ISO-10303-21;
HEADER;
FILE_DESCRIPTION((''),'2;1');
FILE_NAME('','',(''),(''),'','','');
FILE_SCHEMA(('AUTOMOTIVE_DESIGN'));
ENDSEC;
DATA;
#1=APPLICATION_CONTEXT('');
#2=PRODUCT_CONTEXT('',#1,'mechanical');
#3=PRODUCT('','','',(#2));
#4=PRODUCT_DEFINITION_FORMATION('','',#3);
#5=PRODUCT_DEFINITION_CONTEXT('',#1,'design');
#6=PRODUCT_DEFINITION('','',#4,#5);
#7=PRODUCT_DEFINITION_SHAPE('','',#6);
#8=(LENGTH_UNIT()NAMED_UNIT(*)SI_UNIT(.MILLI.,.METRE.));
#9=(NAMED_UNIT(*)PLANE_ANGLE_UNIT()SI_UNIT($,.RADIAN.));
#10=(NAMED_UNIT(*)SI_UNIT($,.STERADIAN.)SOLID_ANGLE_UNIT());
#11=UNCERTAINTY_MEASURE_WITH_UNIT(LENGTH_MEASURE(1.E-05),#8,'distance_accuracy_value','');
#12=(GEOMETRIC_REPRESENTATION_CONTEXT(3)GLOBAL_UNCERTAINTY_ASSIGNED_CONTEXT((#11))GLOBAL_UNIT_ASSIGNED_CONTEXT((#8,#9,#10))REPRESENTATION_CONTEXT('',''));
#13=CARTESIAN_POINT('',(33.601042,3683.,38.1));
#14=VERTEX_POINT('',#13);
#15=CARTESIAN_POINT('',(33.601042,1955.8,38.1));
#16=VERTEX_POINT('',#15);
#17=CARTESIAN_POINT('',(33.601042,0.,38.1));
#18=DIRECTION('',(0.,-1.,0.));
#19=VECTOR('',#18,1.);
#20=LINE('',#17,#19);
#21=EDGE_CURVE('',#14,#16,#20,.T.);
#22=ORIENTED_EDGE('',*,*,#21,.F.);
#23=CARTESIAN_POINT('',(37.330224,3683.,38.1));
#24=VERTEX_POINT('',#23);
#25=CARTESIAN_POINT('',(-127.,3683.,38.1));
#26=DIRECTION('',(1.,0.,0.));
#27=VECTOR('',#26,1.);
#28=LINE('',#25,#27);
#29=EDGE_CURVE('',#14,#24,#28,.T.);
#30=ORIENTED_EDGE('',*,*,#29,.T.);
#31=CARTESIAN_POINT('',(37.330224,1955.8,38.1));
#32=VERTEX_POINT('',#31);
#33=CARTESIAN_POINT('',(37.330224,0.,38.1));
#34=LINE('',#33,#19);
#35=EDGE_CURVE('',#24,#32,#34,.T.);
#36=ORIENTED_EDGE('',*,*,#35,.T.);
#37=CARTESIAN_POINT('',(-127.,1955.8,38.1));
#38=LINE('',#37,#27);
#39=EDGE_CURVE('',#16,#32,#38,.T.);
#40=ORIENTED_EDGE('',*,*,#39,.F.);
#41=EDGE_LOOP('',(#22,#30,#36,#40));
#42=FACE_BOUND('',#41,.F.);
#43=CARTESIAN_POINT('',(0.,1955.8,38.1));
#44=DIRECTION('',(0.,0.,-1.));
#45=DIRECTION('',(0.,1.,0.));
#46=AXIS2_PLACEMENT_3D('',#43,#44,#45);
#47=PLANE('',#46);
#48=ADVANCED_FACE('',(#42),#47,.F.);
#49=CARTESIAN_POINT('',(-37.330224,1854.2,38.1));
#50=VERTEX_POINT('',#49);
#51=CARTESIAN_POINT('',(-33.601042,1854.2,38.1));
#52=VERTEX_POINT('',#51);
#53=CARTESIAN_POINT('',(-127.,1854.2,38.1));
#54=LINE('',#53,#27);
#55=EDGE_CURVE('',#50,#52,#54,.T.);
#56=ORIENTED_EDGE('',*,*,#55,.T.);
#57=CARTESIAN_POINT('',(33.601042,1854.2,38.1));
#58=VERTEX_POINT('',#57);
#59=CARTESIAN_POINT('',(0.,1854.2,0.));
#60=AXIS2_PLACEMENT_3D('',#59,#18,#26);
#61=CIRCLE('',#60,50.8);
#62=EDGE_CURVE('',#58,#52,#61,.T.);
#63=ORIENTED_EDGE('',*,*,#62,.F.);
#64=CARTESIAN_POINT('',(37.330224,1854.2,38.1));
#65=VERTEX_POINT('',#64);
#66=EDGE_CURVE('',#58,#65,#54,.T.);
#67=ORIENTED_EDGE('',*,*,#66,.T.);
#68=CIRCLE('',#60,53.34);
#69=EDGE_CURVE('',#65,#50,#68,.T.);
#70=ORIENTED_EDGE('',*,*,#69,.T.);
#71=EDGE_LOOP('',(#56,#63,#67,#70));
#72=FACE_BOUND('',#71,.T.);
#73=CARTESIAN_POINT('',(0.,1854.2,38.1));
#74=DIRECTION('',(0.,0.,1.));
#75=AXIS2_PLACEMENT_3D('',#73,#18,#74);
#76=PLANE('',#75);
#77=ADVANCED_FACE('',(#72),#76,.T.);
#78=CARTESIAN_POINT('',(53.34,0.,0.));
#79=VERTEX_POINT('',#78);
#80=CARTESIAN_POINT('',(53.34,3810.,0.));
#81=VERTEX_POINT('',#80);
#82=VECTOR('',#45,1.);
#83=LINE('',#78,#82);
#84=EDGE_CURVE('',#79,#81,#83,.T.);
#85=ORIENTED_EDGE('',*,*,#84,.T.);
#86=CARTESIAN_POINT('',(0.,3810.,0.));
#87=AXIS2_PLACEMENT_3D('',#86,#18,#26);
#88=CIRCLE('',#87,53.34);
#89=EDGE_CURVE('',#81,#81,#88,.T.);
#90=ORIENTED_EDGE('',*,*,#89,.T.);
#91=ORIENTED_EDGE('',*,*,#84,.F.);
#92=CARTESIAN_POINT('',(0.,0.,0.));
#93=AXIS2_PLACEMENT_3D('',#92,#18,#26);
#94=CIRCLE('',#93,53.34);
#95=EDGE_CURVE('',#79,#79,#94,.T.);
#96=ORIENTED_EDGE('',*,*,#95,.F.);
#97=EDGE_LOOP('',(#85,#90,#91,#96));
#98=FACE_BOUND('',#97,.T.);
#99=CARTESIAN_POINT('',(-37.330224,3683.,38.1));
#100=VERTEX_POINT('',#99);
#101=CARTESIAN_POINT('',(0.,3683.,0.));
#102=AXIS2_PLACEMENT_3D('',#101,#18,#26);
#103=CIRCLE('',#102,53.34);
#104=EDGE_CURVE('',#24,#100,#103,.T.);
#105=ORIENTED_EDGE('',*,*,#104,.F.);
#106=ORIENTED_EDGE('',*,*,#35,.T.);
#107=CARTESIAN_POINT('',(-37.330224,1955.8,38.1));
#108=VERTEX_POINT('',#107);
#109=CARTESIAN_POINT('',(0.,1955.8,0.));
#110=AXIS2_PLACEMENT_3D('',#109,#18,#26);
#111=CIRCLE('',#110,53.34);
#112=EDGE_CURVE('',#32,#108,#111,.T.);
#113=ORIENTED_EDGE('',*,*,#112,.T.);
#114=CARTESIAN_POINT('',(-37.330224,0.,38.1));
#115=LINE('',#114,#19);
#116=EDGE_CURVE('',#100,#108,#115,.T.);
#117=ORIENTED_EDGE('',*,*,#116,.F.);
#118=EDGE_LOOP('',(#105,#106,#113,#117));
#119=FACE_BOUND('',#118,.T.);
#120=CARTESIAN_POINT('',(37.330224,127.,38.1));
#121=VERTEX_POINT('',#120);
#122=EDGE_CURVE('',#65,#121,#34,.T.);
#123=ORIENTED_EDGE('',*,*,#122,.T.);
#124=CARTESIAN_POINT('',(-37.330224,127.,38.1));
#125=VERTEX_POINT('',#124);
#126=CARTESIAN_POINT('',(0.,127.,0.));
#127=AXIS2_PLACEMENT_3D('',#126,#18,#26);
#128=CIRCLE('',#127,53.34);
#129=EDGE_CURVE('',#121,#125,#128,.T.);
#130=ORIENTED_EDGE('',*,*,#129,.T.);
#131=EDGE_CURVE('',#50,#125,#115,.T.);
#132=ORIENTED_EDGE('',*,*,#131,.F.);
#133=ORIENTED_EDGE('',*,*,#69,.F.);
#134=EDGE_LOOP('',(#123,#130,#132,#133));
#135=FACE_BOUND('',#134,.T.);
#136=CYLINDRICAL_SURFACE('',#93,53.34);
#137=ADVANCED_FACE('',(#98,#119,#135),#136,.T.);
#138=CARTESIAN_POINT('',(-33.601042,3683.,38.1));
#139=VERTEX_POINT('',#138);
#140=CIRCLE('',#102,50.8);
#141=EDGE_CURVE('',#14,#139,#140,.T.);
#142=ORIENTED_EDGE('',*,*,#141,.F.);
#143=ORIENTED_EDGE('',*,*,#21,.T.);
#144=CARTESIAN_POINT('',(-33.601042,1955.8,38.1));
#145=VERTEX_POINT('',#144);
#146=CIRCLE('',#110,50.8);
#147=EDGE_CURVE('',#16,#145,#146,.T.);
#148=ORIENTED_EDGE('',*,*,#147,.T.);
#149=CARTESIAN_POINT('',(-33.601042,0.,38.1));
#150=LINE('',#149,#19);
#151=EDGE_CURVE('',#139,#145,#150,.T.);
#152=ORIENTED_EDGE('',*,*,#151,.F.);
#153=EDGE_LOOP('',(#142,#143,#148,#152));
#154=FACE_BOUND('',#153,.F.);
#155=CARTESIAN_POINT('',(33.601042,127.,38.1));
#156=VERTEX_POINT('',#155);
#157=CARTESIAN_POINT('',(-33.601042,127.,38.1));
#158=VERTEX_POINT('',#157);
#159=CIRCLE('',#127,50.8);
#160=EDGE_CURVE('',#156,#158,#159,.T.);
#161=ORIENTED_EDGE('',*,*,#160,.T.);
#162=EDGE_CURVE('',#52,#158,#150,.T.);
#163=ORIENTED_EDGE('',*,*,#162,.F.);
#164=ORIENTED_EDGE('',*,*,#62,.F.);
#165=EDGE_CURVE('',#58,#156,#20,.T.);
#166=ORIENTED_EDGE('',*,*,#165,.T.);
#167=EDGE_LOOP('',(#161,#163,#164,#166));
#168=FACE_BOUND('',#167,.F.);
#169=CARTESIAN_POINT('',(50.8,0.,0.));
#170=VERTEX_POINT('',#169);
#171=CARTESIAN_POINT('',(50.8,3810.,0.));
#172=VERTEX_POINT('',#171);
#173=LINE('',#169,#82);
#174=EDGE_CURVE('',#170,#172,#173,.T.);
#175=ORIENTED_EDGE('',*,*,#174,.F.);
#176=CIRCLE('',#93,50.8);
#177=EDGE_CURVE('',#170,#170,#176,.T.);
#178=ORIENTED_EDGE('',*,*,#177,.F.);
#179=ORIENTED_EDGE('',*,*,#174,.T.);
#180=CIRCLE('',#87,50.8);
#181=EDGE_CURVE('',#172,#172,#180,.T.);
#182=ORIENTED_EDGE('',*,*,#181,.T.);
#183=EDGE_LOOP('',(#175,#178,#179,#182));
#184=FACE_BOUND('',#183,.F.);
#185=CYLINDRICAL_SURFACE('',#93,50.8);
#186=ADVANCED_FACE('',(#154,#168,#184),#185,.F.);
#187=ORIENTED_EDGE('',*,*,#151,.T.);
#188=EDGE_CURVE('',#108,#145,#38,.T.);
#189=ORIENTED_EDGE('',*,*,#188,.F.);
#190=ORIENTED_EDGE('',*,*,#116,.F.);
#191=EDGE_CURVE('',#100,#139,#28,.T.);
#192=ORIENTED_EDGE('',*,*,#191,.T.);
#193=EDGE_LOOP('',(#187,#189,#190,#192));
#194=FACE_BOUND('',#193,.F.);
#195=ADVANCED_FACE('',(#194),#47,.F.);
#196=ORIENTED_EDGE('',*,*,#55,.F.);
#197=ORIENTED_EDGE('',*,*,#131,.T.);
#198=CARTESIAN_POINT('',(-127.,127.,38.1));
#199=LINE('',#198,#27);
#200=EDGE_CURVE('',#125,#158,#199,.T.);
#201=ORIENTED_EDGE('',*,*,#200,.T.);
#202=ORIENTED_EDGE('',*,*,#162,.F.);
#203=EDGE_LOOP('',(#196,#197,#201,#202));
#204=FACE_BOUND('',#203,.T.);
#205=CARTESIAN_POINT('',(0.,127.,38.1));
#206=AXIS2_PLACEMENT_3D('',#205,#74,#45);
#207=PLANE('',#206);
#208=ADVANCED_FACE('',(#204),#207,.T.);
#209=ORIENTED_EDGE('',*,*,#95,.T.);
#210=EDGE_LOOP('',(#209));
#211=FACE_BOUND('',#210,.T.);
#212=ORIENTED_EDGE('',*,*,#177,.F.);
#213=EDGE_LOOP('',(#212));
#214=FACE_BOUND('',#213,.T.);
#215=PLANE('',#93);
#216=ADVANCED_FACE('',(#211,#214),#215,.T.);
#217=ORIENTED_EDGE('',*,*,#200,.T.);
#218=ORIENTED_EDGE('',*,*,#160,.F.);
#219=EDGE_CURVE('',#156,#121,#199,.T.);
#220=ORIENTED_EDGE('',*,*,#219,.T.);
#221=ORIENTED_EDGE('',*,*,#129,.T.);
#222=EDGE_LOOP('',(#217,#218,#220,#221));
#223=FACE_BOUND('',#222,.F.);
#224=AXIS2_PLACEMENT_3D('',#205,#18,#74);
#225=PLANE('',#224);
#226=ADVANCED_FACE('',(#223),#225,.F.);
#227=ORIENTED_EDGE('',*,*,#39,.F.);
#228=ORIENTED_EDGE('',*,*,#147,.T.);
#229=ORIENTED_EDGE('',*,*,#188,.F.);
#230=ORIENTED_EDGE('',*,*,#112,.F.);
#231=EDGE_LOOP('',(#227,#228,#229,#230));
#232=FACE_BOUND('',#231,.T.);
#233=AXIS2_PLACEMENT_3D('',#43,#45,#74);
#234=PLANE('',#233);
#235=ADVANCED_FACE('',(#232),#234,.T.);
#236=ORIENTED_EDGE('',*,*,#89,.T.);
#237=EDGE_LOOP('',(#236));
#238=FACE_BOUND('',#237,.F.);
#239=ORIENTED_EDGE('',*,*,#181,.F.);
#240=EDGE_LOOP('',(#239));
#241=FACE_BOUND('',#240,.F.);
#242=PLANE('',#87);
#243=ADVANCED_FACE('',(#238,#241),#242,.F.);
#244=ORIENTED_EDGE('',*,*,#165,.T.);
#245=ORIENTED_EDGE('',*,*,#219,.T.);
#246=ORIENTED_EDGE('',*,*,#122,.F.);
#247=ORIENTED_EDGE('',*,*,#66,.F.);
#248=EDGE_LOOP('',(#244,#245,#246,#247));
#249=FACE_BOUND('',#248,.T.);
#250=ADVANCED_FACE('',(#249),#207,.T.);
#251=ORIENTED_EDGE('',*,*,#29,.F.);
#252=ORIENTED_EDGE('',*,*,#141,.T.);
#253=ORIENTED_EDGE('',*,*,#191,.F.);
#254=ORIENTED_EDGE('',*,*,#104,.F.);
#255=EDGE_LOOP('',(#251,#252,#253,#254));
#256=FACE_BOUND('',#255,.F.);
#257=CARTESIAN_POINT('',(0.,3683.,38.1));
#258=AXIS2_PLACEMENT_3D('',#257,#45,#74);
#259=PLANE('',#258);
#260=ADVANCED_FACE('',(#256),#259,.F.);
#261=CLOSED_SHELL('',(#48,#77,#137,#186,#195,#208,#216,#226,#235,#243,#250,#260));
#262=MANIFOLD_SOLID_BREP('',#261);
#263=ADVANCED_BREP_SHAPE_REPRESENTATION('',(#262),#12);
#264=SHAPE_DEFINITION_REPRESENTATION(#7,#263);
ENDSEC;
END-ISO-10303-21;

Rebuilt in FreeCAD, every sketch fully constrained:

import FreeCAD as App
import Part
import Sketcher
Q = App.Units.Quantity


def add_polygon(sketch, points):
    """Adds a closed chain of lines whose ends are joined by coincident constraints."""
    first, n = sketch.GeometryCount, len(points)
    for a, b in zip(points, points[1:] + points[:1]):
        sketch.addGeometry(Part.LineSegment(App.Vector(*a, 0), App.Vector(*b, 0)), False)
    for i in range(n):
        sketch.addConstraint(Sketcher.Constraint("Coincident", first + i, 2, first + (i + 1) % n, 1))

doc = App.newDocument("Part")
body = doc.addObject("PartDesign::Body", "Body")

sketch1 = body.newObject("Sketcher::SketchObject", "Sketch")
sketch1.AttachmentSupport = (doc.getObject("XZ_Plane"), [""])
sketch1.MapMode = "FlatFace"
sketch1.addGeometry([
    Part.Circle(App.Vector(0, 0, 0), App.Vector(0, 0, 1), 53),
    Part.Circle(App.Vector(0, 0, 0), App.Vector(0, 0, 1), 51),
], False)
sketch1.addConstraint([
    Sketcher.Constraint("Coincident", 0, 3, -1, 1),
    Sketcher.Constraint("Coincident", 1, 3, -1, 1),
    Sketcher.Constraint("Diameter", 1, Q("4 in")),
    Sketcher.Constraint("Diameter", 0, Q("4.2 in")),
])
pad1 = body.newObject("PartDesign::Pad", "Pad")
pad1.Profile = sketch1
pad1.Length = Q("150 in")
pad1.Reversed = True

sketch2 = body.newObject("Sketcher::SketchObject", "Sketch001")
sketch2.AttachmentSupport = (doc.getObject("YZ_Plane"), [""])
sketch2.MapMode = "FlatFace"
add_polygon(sketch2, [(127, 299), (127, 38), (1854, 38), (1854, 299)])
add_polygon(sketch2, [(1956, 299), (1956, 38), (3683, 38), (3683, 299)])
sketch2.addConstraint([
    Sketcher.Constraint("Vertical", 0),
    Sketcher.Constraint("Horizontal", 1),
    Sketcher.Constraint("Vertical", 2),
    Sketcher.Constraint("Horizontal", 3),
    Sketcher.Constraint("Vertical", 4),
    Sketcher.Constraint("Horizontal", 5),
    Sketcher.Constraint("Vertical", 6),
    Sketcher.Constraint("Horizontal", 7),
    Sketcher.Constraint("Horizontal", 1, 2, 4, 2),
    Sketcher.Constraint("Horizontal", 3, 2, 6, 2),
    Sketcher.Constraint("Equal", 3, 5),
    Sketcher.Constraint("DistanceX", 1, 1, 1, 2, Q("68 in")),
    Sketcher.Constraint("DistanceX", -1, 1, 0, 2, Q("5 in")),
    Sketcher.Constraint("DistanceX", -1, 1, 4, 2, Q("77 in")),
    Sketcher.Constraint("DistanceY", -1, 1, 0, 2, Q("1.5 in")),
    Sketcher.Constraint("DistanceY", 0, 2, 0, 1, Q("260.696266 mm")),
])
pocket1 = body.newObject("PartDesign::Pocket", "Pocket")
pocket1.Profile = sketch2
pocket1.Length = Q("10 in")
pocket1.Midplane = True

doc.recompute()
